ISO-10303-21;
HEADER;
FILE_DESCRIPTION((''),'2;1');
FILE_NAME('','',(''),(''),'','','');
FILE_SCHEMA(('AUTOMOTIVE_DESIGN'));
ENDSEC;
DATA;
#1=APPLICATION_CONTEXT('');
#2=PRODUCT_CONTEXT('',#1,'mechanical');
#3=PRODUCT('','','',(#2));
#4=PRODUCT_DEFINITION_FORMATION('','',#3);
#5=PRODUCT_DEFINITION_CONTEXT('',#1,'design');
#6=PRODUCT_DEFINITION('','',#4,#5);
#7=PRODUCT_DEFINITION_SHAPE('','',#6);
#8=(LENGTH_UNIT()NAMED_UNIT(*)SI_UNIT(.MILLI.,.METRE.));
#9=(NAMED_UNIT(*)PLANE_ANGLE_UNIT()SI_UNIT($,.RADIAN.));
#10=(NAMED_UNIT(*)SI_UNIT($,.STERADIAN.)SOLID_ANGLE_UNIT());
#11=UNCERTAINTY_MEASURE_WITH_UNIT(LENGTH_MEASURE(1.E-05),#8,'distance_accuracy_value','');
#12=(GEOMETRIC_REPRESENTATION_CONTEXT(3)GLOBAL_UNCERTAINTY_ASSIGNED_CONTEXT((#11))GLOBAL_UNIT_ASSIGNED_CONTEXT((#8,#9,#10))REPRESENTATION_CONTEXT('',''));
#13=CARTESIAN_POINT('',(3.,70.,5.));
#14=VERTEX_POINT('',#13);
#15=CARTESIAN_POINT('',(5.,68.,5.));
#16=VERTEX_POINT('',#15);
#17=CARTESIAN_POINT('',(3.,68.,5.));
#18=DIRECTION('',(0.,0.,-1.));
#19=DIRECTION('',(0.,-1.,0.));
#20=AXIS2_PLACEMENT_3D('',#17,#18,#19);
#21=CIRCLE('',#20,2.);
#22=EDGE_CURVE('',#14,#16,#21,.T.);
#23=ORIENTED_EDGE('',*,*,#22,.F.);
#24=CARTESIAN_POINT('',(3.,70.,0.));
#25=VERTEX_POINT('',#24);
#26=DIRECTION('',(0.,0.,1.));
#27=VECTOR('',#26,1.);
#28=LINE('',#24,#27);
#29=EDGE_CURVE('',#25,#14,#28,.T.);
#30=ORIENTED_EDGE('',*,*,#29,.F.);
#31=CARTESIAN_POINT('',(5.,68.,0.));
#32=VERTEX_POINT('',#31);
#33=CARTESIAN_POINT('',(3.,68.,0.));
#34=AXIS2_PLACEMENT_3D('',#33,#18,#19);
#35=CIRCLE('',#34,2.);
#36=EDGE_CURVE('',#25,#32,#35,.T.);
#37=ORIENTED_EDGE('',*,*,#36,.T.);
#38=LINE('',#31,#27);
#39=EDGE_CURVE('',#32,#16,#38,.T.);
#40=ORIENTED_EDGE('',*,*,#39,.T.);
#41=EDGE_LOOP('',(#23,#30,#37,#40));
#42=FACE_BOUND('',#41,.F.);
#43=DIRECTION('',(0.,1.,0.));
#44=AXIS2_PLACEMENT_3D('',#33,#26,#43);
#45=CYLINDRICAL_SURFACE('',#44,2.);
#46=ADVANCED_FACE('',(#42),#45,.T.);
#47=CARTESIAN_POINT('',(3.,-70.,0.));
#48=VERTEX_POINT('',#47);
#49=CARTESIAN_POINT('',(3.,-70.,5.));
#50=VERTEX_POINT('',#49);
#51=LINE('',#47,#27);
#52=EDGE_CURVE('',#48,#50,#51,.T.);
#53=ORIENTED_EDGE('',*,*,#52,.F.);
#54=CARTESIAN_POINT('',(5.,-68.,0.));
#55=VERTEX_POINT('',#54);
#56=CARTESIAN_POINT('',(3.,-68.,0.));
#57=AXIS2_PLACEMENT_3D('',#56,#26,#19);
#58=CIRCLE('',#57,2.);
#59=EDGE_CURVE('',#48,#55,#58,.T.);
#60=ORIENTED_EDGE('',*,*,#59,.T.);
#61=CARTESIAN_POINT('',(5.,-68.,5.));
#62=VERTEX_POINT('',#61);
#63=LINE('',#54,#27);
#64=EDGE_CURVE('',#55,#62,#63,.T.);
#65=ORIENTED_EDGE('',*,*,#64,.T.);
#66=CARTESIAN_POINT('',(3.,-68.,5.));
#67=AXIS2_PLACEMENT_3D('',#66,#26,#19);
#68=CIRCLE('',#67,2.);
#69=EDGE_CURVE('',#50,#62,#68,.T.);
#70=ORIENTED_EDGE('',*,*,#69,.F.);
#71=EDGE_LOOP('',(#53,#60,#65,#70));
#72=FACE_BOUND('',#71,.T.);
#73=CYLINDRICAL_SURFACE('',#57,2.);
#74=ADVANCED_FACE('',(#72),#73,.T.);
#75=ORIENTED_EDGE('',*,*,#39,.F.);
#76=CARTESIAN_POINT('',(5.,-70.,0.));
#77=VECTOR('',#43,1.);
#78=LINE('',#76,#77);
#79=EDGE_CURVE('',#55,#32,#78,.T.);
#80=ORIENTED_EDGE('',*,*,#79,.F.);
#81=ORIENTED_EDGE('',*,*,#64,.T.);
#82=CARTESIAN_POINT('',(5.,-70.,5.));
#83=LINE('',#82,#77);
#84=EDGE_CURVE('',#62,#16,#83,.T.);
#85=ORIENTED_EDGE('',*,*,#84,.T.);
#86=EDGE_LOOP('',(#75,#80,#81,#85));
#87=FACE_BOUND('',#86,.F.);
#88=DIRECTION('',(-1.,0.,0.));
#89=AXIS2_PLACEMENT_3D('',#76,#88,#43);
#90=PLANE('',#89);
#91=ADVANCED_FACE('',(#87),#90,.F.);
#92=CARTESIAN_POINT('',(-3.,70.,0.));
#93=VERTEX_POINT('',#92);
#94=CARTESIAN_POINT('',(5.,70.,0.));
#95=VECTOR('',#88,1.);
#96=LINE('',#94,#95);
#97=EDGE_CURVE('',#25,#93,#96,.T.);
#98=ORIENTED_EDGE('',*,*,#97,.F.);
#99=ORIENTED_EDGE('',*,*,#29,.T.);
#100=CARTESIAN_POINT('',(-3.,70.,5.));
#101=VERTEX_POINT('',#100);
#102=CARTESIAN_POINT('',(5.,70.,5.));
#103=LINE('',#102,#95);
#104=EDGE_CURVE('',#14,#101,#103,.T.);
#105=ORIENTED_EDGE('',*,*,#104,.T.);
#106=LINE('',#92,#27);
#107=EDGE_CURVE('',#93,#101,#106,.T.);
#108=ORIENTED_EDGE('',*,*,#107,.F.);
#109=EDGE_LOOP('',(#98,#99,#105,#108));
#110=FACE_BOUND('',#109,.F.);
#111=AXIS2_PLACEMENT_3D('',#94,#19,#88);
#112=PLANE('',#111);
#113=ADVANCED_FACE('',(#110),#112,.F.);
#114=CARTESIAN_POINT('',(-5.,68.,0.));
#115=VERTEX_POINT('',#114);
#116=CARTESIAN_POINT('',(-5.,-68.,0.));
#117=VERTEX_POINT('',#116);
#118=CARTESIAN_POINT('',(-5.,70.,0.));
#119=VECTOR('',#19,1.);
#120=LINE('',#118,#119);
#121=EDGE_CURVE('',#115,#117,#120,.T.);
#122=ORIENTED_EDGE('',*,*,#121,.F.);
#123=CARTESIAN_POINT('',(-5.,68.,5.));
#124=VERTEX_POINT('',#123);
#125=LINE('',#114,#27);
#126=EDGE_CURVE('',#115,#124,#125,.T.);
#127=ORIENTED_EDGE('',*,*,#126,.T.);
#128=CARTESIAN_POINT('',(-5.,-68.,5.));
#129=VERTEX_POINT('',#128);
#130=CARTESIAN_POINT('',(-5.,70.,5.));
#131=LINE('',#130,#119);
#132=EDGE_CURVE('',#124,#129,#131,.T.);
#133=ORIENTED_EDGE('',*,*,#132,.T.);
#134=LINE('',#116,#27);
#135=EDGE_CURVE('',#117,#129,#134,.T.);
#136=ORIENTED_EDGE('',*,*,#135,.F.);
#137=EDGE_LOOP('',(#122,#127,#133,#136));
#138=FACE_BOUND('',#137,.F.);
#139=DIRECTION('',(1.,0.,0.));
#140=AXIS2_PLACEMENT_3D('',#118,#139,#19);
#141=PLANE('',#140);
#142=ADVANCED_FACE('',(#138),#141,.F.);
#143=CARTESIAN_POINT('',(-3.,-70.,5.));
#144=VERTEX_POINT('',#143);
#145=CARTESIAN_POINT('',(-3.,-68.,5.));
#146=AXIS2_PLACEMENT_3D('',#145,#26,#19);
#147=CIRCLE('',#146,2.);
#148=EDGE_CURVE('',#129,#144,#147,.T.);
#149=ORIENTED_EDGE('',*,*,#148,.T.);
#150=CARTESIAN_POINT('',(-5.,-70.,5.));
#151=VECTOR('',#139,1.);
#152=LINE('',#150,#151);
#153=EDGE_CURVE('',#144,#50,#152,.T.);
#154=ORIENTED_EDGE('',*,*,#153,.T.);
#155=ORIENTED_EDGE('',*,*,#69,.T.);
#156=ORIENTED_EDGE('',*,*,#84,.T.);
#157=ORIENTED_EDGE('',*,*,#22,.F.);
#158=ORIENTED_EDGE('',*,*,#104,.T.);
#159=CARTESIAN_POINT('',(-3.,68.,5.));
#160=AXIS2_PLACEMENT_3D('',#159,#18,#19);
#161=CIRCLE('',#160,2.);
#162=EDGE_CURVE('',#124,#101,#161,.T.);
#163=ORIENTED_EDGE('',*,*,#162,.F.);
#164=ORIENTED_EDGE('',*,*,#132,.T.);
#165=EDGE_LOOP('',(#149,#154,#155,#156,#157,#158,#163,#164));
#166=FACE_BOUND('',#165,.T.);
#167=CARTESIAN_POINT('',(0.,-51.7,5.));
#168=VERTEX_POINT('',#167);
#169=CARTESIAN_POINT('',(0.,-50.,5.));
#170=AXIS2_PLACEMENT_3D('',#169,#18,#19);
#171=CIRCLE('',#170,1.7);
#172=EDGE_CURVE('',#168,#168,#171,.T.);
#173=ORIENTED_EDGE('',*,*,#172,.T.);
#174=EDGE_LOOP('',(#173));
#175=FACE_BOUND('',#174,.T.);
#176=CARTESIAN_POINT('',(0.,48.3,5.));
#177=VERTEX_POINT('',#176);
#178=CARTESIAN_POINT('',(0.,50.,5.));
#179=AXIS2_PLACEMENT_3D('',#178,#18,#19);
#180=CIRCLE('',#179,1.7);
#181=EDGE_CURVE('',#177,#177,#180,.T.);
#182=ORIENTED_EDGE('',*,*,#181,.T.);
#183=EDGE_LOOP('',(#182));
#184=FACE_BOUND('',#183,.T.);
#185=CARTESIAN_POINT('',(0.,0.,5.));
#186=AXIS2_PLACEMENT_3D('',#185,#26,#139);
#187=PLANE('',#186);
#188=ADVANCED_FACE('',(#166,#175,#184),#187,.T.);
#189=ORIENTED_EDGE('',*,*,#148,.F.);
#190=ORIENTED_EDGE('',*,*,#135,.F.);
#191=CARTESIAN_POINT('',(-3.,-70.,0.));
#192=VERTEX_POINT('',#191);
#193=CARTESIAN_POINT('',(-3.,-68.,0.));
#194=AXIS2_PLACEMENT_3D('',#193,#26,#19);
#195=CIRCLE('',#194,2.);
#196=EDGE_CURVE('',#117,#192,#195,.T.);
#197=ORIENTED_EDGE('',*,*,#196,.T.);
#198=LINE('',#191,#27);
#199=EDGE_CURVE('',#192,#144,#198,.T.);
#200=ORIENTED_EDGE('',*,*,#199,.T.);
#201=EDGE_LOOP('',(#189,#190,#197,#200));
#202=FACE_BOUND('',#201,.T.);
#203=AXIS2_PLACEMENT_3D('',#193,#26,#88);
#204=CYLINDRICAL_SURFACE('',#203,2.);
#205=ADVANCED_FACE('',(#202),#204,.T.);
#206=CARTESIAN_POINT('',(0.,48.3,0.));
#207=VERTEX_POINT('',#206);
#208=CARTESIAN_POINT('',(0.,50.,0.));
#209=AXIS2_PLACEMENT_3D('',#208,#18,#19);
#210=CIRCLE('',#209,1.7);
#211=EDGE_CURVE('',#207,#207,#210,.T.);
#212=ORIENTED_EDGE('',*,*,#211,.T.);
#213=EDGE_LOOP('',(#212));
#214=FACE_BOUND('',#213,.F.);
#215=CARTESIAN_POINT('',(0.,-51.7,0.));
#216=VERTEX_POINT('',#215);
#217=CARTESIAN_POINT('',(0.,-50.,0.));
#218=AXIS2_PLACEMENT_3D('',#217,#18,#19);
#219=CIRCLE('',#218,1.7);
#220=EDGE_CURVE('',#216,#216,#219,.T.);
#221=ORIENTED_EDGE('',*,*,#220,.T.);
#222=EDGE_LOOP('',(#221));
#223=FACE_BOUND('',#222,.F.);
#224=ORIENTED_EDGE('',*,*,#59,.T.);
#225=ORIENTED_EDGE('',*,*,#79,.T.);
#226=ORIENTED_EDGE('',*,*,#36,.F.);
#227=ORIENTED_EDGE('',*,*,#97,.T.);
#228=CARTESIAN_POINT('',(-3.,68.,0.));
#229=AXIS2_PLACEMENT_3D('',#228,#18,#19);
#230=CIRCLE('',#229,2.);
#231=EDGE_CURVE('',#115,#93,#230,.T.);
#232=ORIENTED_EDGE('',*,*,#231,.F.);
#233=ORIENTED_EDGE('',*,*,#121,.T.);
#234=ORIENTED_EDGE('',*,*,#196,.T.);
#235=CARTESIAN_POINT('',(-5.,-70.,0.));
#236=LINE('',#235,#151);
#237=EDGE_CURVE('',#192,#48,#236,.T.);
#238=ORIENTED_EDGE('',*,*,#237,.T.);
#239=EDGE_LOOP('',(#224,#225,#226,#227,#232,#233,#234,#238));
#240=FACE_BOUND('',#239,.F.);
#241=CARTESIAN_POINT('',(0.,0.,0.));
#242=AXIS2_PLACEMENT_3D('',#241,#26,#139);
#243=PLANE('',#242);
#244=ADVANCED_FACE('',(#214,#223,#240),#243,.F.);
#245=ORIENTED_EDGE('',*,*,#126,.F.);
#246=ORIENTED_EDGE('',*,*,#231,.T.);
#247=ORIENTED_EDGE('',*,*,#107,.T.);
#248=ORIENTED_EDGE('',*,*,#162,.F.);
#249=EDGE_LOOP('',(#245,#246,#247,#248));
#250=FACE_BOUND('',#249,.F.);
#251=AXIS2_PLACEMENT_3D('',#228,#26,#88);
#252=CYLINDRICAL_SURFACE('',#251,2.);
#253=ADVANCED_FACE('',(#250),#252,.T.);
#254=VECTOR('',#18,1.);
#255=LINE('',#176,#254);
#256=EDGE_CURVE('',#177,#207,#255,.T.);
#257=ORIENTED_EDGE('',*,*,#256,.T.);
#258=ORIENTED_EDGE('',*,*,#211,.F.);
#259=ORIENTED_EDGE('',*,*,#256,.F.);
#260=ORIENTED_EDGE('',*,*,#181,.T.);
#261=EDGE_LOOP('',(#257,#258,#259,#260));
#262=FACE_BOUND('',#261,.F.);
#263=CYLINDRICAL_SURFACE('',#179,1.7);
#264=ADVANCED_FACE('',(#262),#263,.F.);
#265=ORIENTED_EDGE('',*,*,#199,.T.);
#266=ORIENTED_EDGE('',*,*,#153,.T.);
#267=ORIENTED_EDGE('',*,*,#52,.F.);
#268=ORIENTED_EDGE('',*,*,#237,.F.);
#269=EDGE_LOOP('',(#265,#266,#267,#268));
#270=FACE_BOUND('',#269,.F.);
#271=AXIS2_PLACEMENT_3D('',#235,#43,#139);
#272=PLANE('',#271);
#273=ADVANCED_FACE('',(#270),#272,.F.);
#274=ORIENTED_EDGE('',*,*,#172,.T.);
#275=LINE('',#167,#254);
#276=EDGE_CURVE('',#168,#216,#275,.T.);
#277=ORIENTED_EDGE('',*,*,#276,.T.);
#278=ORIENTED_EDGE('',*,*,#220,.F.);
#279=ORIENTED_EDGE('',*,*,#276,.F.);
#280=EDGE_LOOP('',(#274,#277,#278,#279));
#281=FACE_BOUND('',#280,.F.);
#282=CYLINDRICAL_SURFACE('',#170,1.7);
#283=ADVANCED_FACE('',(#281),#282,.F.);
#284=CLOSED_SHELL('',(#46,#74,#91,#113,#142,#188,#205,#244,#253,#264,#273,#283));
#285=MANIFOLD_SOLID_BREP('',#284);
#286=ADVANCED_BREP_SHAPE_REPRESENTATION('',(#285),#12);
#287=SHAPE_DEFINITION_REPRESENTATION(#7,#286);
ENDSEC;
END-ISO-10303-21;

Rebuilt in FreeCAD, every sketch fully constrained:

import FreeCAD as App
import Part
import Sketcher
from FreeCAD import Vector
Q = App.Units.Quantity


def edges_at(feature, points):
    """Names of the edges that pass closest to the given points."""
    edges = feature.Shape.Edges
    near = lambda p: min(range(len(edges)), key=lambda i: edges[i].distToShape(Part.Vertex(*p))[0])
    return sorted({f"Edge{near(p) + 1}" for p in points})

doc = App.newDocument("Part")
body = doc.addObject("PartDesign::Body", "Body")

# Sketch on XY plane
sketch1 = doc.addObject("Sketcher::SketchObject", "Sketch")
body.addObject(sketch1)
sketch1.AttachmentSupport = (doc.XY_Plane, [""])
sketch1.MapMode = "FlatFace"
sketch1.addGeometry([
    Part.LineSegment(Vector(-5, 70, 0), Vector(-5, -70, 0)),
    Part.LineSegment(Vector(-5, -70, 0), Vector(5, -70, 0)),
    Part.LineSegment(Vector(5, -70, 0), Vector(5, 70, 0)),
    Part.LineSegment(Vector(5, 70, 0), Vector(-5, 70, 0)),
], False)
sketch1.addConstraint([
    Sketcher.Constraint("Coincident", 0, 2, 1, 1),
    Sketcher.Constraint("Coincident", 1, 2, 2, 1),
    Sketcher.Constraint("Coincident", 2, 2, 3, 1),
    Sketcher.Constraint("Coincident", 3, 2, 0, 1),
    Sketcher.Constraint("Vertical", 0),
    Sketcher.Constraint("Horizontal", 1),
    Sketcher.Constraint("Vertical", 2),
    Sketcher.Constraint("Horizontal", 3),
    Sketcher.Constraint("Symmetric", 0, 2, 2, 2, -1, 1),
    Sketcher.Constraint("DistanceX", 1, 1, 1, 2, Q("10 mm")),
    Sketcher.Constraint("DistanceY", 0, 2, 0, 1, Q("140 mm")),
])
pad1 = doc.addObject("PartDesign::Pad", "Pad")
body.addObject(pad1)
pad1.Profile = sketch1
pad1.Length = 5

# Sketch on XY plane
sketch2 = doc.addObject("Sketcher::SketchObject", "Sketch001")
body.addObject(sketch2)
sketch2.AttachmentSupport = (doc.XY_Plane, [""])
sketch2.MapMode = "FlatFace"
sketch2.AttachmentOffset = App.Placement(Vector(0, 0, 5), App.Rotation())
sketch2.addGeometry([
    Part.Circle(Vector(0, 50, 0), Vector(0, 0, 1), 1.7),
    Part.Circle(Vector(0, -50, 0), Vector(0, 0, 1), 1.7),
], False)
sketch2.addConstraint([
    Sketcher.Constraint("Equal", 0, 1),
    Sketcher.Constraint("Symmetric", 0, 3, 1, 3, -1, 1),
    Sketcher.Constraint("PointOnObject", 0, 3, -2),
    Sketcher.Constraint("Diameter", 0, Q("3.4 mm")),
    Sketcher.Constraint("DistanceY", -1, 1, 0, 3, Q("50 mm")),
])
doc.recompute()
hole = doc.addObject("PartDesign::Hole", "Hole")
body.addObject(hole)
hole.Profile = sketch2
hole.ThreadType = "None"
hole.Diameter = 3.4
hole.DepthType = "Dimension"
hole.Depth = 8
hole.DrillPoint = "Angled"
hole.DrillPointAngle = 118
doc.recompute()

fillet = doc.addObject("PartDesign::Fillet", "Fillet")
body.addObject(fillet)
fillet.Base = (hole, edges_at(hole, [
    (5, 70, 2.5),
    (-5, 70, 2.5),
    (5, -70, 2.5),
    (-5, -70, 2.5),
]))
fillet.Radius = 2

doc.recompute()
